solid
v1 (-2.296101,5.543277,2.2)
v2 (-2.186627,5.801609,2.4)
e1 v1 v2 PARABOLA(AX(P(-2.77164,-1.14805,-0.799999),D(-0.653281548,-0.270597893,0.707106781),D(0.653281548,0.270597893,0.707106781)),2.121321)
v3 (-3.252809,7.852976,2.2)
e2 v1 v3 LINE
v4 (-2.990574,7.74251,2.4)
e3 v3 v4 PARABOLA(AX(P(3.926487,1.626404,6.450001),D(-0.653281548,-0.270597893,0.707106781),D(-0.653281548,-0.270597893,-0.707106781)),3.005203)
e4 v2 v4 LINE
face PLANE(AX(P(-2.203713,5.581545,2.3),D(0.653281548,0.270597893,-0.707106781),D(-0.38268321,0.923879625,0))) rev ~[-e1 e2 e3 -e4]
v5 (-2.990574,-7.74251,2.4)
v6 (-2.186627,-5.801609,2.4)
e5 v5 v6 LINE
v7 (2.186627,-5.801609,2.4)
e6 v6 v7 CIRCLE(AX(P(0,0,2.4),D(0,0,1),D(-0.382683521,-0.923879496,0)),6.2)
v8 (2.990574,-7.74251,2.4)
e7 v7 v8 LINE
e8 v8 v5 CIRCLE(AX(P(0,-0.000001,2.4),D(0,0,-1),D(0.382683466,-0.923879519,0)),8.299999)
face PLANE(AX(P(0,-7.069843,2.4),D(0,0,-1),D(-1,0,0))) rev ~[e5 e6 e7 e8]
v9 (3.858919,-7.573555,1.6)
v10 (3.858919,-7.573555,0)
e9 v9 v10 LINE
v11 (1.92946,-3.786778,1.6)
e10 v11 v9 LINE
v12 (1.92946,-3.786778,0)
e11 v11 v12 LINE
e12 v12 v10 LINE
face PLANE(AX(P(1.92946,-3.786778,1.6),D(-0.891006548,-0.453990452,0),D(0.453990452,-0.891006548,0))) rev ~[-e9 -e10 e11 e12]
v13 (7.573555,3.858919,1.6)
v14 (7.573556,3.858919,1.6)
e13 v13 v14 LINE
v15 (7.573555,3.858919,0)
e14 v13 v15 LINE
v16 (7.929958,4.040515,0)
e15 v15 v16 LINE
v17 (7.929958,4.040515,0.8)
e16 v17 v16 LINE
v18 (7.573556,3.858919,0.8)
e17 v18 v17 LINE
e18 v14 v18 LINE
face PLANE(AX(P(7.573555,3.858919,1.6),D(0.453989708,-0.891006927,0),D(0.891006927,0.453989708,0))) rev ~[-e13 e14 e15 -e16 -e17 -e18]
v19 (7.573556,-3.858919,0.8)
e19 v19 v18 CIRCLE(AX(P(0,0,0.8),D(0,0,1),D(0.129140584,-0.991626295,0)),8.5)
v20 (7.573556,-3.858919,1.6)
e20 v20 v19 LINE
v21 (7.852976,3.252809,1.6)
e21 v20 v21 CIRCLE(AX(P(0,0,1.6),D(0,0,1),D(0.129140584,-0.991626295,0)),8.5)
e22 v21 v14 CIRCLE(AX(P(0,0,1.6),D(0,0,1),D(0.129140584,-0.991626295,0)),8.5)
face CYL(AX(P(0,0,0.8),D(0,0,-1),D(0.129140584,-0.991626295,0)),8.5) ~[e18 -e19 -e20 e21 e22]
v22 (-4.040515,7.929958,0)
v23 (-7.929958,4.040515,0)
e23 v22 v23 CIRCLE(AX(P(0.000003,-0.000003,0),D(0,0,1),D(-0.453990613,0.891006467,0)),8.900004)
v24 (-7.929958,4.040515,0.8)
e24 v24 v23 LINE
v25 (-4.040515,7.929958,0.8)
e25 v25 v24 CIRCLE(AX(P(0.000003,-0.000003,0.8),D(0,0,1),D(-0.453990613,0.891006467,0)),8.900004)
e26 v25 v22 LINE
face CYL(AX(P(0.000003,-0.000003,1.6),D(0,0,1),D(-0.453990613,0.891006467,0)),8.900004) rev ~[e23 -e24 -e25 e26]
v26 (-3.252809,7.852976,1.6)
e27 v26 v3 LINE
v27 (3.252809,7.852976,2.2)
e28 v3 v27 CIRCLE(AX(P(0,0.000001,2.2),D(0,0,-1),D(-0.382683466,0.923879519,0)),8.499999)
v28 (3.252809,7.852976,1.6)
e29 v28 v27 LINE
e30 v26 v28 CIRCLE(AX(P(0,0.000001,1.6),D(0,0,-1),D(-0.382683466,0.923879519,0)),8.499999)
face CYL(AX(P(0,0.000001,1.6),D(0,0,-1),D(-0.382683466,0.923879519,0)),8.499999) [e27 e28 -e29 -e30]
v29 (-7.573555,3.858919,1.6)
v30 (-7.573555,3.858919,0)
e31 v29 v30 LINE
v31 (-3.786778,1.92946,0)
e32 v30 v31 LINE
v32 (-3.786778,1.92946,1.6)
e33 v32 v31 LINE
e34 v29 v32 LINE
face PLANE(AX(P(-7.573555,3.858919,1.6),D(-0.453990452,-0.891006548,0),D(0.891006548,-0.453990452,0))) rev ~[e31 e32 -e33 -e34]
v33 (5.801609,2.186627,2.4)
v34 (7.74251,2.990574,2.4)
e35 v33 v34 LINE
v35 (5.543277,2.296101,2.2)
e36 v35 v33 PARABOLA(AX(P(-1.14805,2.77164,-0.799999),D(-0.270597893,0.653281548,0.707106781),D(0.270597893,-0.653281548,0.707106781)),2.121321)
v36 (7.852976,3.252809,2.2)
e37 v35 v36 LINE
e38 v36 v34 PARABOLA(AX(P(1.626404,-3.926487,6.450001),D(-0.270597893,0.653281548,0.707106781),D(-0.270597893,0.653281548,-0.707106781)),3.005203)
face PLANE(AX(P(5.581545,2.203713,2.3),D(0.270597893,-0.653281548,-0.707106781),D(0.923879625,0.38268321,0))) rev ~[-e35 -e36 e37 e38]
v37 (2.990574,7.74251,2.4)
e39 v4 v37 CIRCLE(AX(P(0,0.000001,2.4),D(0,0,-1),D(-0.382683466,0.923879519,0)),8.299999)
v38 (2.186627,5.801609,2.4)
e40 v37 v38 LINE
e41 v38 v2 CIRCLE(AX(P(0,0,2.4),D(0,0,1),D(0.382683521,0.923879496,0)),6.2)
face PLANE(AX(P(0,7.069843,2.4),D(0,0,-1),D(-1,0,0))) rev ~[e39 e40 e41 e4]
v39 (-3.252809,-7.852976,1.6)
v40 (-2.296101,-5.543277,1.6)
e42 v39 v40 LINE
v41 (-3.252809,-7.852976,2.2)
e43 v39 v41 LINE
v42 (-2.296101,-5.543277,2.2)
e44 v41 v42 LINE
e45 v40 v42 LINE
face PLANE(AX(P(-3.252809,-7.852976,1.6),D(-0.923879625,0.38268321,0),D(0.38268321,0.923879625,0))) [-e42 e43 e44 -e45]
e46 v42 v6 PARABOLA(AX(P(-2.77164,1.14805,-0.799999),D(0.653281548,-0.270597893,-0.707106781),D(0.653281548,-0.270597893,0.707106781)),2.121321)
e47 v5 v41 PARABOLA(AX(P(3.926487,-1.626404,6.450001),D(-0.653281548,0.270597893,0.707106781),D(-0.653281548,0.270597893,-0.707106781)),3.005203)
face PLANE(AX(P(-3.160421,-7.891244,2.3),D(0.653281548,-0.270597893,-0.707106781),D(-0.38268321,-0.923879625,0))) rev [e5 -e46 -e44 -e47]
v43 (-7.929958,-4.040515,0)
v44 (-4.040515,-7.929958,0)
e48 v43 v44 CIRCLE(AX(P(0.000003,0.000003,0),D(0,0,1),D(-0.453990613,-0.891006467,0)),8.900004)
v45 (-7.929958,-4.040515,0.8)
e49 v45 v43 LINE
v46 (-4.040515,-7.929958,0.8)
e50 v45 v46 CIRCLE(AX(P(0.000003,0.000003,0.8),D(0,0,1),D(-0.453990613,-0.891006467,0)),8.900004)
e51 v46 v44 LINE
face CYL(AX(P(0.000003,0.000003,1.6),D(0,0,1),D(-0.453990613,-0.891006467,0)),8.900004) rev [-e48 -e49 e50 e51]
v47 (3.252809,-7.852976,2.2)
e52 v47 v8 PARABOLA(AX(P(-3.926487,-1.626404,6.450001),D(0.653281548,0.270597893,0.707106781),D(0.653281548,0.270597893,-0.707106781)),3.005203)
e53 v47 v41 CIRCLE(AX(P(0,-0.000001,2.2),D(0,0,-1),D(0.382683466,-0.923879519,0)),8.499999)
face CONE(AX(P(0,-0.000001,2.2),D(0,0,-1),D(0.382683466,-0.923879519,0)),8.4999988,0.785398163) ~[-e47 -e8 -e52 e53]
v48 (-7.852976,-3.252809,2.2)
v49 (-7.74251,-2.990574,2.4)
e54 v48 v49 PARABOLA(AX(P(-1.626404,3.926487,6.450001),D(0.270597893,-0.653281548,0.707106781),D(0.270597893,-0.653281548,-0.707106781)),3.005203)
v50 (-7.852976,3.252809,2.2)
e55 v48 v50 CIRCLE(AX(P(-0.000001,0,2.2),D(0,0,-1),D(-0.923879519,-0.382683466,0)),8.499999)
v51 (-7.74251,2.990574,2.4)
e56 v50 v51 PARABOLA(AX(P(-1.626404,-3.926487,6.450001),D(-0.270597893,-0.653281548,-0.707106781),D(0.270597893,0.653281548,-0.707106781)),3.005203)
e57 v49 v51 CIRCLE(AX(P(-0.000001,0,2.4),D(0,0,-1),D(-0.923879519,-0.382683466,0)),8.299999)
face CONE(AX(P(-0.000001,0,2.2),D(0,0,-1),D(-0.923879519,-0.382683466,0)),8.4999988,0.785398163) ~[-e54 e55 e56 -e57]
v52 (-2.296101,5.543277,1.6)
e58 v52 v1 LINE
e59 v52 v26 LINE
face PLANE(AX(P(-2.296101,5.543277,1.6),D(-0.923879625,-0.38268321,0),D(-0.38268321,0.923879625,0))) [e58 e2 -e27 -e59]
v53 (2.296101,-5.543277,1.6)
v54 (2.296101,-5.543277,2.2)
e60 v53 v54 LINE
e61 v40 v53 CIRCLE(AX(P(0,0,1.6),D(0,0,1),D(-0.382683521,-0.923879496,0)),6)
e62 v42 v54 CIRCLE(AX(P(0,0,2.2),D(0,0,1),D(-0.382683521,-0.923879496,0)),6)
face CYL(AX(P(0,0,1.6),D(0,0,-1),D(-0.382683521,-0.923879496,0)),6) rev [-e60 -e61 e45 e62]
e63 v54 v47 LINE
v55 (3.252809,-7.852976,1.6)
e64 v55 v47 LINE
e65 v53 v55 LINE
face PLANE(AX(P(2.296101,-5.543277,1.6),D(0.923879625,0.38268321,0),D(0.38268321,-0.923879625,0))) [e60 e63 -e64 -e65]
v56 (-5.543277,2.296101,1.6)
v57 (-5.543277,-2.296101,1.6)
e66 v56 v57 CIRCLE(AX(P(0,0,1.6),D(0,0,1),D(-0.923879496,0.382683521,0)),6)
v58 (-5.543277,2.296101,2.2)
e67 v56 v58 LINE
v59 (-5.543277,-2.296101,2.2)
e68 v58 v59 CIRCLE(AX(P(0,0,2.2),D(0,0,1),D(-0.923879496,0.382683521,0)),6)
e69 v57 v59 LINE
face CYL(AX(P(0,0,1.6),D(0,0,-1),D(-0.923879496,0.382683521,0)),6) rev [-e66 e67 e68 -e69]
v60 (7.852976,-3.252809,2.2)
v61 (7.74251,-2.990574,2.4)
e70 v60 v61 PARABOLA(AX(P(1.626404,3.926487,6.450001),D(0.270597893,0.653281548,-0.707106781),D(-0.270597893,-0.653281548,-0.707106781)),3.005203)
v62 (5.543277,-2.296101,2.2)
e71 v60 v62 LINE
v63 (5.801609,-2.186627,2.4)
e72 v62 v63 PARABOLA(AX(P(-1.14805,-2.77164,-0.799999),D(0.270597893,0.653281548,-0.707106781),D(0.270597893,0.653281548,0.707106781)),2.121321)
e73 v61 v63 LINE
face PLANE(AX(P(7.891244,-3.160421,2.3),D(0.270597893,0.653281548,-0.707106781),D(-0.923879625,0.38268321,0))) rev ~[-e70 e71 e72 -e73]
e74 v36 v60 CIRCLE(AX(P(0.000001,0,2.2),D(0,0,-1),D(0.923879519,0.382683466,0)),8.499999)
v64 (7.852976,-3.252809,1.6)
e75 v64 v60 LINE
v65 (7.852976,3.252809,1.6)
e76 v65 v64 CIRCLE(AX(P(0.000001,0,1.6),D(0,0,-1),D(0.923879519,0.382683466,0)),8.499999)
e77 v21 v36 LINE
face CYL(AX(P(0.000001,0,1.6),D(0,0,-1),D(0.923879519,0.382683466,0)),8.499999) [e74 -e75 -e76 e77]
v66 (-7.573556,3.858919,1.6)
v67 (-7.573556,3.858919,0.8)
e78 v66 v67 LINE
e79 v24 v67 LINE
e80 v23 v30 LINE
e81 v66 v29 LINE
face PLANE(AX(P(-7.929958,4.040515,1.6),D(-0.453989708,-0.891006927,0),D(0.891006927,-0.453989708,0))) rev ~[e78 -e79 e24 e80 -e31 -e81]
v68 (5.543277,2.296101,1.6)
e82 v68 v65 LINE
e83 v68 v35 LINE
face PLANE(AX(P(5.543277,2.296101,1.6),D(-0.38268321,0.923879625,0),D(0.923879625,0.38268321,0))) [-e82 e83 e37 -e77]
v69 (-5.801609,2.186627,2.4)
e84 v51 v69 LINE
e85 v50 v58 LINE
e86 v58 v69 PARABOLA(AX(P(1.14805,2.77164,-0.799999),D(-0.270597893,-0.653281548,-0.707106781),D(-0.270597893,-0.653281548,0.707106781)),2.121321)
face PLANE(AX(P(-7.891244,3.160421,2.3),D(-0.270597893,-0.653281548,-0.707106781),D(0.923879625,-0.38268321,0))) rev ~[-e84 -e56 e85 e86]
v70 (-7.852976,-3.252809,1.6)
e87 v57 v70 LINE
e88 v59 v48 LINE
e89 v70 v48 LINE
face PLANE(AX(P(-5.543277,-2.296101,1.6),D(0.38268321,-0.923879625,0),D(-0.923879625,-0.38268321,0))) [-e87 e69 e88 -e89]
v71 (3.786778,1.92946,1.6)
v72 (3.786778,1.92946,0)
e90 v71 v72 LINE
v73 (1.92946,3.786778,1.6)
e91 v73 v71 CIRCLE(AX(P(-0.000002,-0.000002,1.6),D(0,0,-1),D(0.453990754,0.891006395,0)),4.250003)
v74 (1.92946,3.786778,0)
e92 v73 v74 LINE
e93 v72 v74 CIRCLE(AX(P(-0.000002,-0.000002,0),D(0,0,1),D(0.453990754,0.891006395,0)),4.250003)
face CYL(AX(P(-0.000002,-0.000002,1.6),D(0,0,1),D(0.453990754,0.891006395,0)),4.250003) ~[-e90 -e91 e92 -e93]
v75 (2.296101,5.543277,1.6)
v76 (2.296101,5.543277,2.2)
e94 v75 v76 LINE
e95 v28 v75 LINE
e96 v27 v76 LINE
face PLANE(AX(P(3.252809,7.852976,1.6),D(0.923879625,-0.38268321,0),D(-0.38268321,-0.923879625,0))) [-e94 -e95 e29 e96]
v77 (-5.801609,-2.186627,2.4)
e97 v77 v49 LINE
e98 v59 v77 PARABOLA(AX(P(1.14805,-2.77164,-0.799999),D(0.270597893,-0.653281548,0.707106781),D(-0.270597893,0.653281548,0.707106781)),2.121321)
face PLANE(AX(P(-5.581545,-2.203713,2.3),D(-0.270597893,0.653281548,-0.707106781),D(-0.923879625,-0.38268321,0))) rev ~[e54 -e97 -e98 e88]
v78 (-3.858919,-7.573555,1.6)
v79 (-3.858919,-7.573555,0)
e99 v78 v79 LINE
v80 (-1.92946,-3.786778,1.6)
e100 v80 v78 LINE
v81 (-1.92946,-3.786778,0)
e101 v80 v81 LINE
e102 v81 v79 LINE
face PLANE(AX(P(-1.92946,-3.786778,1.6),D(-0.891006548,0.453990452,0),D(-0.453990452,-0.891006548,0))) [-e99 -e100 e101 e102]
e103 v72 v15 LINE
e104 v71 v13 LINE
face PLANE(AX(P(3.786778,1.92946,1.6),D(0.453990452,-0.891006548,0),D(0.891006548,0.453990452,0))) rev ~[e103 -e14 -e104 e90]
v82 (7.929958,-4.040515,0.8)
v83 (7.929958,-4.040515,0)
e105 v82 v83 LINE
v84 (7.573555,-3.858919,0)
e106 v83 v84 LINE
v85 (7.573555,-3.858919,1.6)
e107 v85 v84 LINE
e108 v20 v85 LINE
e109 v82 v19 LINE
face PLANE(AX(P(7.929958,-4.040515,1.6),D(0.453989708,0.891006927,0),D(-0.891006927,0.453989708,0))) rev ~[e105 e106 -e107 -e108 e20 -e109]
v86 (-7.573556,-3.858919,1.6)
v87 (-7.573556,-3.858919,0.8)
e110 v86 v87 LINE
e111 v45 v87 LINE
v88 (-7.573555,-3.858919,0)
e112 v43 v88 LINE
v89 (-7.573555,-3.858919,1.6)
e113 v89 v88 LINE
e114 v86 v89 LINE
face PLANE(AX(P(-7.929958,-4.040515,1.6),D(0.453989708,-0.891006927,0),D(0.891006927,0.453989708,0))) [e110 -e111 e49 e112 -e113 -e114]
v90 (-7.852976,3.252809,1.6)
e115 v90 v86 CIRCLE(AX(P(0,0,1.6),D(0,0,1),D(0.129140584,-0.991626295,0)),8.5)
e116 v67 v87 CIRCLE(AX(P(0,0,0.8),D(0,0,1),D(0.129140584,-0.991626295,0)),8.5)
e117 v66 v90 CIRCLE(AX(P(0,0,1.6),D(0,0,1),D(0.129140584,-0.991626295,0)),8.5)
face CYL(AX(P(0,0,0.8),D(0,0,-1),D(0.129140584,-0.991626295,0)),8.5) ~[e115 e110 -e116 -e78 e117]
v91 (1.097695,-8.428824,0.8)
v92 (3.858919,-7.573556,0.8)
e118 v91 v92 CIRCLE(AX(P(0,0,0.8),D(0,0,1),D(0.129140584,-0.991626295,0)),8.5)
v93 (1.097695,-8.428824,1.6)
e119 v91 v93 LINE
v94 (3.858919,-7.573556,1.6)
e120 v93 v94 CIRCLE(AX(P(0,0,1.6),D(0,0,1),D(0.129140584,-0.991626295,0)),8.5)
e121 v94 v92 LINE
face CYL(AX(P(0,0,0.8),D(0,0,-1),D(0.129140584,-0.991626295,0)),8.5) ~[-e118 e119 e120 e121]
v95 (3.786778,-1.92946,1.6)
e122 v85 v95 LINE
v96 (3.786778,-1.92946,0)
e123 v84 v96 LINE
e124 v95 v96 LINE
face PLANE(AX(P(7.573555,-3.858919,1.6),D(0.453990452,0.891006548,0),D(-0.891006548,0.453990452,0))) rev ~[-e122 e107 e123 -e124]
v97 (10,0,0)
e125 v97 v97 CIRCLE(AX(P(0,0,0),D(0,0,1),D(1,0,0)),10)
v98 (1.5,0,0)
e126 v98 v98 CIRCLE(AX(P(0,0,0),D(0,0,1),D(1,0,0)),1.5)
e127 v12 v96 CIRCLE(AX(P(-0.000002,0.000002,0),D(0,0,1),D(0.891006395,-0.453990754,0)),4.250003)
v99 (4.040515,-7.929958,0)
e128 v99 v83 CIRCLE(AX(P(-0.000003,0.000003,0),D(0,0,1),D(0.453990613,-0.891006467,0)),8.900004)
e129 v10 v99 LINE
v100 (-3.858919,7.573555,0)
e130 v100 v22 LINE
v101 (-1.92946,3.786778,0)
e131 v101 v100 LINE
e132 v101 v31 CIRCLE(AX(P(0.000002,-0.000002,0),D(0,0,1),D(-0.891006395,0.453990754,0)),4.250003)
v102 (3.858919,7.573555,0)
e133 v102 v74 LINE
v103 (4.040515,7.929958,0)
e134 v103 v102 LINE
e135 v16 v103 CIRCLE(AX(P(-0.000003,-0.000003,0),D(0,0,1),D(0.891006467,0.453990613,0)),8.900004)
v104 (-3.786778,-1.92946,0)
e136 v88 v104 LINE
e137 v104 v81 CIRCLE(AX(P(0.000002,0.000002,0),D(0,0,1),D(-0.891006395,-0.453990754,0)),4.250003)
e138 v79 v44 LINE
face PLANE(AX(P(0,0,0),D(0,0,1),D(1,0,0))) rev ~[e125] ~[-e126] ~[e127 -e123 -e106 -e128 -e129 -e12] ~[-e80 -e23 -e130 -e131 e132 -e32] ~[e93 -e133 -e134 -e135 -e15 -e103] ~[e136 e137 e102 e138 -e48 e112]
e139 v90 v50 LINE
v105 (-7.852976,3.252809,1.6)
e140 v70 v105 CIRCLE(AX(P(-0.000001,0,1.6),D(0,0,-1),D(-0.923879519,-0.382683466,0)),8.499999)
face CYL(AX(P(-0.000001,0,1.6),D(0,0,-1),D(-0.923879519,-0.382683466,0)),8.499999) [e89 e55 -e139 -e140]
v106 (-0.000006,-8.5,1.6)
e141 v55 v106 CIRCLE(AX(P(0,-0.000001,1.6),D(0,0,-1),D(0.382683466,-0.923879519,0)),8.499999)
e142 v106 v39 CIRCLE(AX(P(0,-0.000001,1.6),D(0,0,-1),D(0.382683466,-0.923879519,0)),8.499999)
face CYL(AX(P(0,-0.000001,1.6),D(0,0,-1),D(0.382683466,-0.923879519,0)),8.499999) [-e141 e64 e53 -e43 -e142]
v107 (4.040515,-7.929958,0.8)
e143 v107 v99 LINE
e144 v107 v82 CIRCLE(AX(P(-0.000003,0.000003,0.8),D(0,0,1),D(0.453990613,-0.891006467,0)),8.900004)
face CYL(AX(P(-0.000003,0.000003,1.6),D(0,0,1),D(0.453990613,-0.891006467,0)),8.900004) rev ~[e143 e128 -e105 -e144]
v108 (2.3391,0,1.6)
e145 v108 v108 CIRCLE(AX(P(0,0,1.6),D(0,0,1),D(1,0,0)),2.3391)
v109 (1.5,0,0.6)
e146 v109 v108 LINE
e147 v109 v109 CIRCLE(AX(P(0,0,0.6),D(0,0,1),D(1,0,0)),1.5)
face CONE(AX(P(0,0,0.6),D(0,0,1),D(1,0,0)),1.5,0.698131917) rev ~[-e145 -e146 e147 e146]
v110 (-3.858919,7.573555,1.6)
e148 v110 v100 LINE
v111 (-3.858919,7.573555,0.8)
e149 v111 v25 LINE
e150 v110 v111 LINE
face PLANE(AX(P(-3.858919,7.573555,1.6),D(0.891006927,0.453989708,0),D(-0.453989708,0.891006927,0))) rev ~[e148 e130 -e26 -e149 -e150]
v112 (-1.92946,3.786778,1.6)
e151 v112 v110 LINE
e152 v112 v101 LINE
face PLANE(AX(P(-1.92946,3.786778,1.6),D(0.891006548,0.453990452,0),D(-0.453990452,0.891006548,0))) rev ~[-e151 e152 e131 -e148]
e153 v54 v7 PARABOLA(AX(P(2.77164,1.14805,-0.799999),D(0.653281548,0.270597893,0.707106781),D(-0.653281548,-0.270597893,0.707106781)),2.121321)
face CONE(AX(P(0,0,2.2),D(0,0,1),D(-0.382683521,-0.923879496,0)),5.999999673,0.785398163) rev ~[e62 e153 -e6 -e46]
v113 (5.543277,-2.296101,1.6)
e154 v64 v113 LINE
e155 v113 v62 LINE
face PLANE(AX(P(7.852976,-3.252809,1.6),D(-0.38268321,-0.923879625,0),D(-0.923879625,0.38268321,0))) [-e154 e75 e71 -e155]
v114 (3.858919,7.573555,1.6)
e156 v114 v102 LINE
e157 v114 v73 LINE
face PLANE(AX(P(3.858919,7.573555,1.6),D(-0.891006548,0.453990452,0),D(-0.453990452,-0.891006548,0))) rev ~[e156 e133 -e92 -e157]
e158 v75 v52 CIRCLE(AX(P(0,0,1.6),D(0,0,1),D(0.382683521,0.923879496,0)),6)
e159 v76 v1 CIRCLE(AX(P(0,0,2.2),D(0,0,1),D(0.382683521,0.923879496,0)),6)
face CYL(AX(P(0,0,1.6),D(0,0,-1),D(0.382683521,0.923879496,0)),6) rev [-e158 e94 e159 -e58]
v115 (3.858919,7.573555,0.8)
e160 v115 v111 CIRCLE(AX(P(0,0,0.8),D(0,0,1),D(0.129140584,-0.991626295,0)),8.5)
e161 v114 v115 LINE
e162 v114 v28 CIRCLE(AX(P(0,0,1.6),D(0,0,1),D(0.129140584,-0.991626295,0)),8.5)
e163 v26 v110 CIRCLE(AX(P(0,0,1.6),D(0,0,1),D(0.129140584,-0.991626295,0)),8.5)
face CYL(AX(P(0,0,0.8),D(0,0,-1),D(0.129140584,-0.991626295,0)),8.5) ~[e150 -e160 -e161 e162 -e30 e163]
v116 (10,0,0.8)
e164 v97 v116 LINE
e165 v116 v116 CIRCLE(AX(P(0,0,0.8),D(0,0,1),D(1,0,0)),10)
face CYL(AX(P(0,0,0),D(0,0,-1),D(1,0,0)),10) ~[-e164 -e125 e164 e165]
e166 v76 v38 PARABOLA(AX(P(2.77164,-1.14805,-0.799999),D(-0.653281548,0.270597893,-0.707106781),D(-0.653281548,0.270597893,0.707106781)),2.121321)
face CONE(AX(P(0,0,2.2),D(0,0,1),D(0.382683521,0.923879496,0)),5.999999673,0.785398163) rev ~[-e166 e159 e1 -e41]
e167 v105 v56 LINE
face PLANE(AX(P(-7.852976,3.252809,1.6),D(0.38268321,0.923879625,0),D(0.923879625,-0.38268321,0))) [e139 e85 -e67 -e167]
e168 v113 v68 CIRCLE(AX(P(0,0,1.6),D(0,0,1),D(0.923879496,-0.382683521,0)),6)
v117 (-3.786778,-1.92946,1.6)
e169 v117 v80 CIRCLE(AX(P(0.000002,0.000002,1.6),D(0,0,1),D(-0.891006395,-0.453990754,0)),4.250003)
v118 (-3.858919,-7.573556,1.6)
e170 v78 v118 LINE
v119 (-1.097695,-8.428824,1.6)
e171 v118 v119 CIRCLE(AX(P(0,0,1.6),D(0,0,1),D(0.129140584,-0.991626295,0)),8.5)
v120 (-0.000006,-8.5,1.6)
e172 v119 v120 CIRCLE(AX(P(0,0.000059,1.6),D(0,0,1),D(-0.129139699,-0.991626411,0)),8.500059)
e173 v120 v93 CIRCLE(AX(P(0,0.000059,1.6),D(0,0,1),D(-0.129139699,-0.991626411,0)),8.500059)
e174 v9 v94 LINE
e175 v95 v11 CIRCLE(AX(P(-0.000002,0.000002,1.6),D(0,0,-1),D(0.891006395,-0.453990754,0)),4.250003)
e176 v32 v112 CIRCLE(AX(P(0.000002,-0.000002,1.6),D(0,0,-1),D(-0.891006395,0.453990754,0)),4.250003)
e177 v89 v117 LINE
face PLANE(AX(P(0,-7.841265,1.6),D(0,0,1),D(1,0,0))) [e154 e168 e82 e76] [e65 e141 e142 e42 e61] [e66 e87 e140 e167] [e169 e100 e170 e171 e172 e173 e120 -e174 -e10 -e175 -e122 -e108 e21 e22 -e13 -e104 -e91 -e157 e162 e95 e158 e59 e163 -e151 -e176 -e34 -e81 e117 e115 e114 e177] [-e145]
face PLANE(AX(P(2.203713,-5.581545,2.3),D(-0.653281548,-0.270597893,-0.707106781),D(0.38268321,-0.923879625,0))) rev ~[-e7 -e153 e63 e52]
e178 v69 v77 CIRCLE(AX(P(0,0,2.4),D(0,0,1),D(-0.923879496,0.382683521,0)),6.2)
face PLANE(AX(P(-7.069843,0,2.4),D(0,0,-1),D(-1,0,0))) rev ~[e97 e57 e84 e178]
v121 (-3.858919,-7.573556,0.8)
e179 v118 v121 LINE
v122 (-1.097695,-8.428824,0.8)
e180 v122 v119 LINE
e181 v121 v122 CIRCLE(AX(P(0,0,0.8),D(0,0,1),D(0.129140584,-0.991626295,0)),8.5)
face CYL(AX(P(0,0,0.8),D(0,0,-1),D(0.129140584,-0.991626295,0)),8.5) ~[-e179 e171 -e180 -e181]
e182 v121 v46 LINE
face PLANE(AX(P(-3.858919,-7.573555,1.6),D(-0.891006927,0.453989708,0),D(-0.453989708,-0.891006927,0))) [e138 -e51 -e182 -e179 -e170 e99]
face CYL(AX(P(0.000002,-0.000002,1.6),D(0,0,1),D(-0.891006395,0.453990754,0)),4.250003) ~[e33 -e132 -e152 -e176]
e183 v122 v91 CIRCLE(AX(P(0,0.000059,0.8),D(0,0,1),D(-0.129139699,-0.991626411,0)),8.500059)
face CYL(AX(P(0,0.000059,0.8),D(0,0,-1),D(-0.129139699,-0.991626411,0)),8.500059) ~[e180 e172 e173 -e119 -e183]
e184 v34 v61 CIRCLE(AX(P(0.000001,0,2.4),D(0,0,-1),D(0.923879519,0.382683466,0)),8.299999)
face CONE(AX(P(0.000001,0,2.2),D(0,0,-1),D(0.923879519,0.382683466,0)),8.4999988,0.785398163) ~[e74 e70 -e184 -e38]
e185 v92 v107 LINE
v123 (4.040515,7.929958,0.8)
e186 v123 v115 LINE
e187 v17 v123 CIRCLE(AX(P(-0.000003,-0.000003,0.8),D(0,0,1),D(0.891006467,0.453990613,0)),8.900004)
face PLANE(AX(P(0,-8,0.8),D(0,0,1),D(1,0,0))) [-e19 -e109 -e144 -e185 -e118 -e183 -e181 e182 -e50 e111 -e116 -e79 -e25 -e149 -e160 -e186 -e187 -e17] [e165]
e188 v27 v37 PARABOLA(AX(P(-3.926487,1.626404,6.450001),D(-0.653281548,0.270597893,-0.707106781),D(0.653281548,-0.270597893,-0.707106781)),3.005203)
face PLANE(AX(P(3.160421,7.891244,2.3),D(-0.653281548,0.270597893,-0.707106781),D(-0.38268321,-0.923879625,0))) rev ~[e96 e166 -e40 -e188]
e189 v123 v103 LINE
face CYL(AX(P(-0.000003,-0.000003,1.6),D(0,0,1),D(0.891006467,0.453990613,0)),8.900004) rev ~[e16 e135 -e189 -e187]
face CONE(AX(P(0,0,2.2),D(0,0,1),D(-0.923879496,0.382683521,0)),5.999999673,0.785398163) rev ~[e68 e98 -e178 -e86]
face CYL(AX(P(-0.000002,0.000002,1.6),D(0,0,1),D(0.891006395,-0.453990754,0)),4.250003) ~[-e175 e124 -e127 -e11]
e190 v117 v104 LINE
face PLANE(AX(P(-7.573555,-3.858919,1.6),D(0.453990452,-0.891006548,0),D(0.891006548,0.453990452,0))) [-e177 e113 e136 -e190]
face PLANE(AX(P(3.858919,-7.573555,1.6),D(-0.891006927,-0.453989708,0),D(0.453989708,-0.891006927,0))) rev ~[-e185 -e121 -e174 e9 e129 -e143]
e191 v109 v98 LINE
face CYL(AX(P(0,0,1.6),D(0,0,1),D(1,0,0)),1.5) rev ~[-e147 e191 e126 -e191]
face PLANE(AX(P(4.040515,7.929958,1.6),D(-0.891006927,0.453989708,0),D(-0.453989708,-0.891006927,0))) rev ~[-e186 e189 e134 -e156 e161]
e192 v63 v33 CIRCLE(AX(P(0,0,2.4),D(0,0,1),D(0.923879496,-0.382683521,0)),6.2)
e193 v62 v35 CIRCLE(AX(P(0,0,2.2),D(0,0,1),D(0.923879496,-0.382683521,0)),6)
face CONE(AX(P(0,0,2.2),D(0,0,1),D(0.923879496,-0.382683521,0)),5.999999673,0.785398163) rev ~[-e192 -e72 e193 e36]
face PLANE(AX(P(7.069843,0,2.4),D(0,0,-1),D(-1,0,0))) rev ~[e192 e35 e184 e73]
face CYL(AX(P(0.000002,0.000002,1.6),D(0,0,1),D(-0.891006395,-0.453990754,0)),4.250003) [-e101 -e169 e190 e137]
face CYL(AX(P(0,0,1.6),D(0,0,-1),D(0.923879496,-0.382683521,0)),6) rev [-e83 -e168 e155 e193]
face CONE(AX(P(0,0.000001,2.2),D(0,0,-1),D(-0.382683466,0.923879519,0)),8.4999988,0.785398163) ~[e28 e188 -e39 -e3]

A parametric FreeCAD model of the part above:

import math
import FreeCAD as App
import Part
import Sketcher
Q = App.Units.Quantity


def edges_at(feature, points):
    """Names of the edges that pass closest to the given points."""
    edges = feature.Shape.Edges
    near = lambda p: min(range(len(edges)), key=lambda i: edges[i].distToShape(Part.Vertex(*p))[0])
    return sorted({f"Edge{near(p) + 1}" for p in points})

doc = App.newDocument("Part")
body = doc.addObject("PartDesign::Body", "Body")

sketch1 = body.newObject("Sketcher::SketchObject", "Sketch")
sketch1.AttachmentSupport = (doc.getObject("XY_Plane"), [""])
sketch1.MapMode = "FlatFace"
sketch1.addGeometry(Part.Circle(App.Vector(0, 0, 0), App.Vector(0, 0, 1), 10), False)
sketch1.addConstraint(Sketcher.Constraint("Coincident", 0, 3, -1, 1))
sketch1.addConstraint(Sketcher.Constraint("Diameter", 0, Q("20 mm")))
pad1 = body.newObject("PartDesign::Pad", "Pad")
pad1.Profile = sketch1
pad1.Length = 0.8

sketch2 = body.newObject("Sketcher::SketchObject", "Sketch001")
sketch2.AttachmentSupport = (doc.getObject("XY_Plane"), [""])
sketch2.MapMode = "FlatFace"
sketch2.AttachmentOffset = App.Placement(App.Vector(0, 0, 0.8), App.Rotation())
sketch2.addGeometry(Part.Circle(App.Vector(0, -8, 0), App.Vector(0, 0, 1), 1.1), False)
sketch2.addConstraint(Sketcher.Constraint("PointOnObject", 0, 3, -2))
sketch2.addConstraint(Sketcher.Constraint("Diameter", 0, Q("2.2 mm")))
sketch2.addConstraint(Sketcher.Constraint("DistanceY", 0, 3, -1, 1, Q("8 mm")))
pocket1 = body.newObject("PartDesign::Pocket", "Pocket")
pocket1.Profile = sketch2
pocket1.Length = 10

sketch3 = body.newObject("Sketcher::SketchObject", "Sketch002")
sketch3.AttachmentSupport = (doc.getObject("XY_Plane"), [""])
sketch3.MapMode = "FlatFace"
sketch3.AttachmentOffset = App.Placement(App.Vector(0, 0, 0.8), App.Rotation())
sketch3.addGeometry(Part.ArcOfCircle(Part.Circle(App.Vector(0, 0, 0), App.Vector(0, 0, 1), 8.5), math.radians(-83), math.radians(263)), False)
sketch3.addGeometry(Part.ArcOfCircle(Part.Circle(App.Vector(0, -8, 0), App.Vector(0, 0, 1), 1.2), math.radians(-21), math.radians(201)), False)
sketch3.addConstraint(Sketcher.Constraint("Coincident", 0, 1, 1, 1))
sketch3.addConstraint(Sketcher.Constraint("Coincident", 1, 2, 0, 2))
sketch3.addConstraint(Sketcher.Constraint("Coincident", 0, 3, -1, 1))
sketch3.addConstraint(Sketcher.Constraint("PointOnObject", 1, 3, -2))
sketch3.addConstraint(Sketcher.Constraint("Radius", 0, Q("8.5 mm")))
sketch3.addConstraint(Sketcher.Constraint("DistanceY", 1, 3, -1, 1, Q("8 mm")))
sketch3.addConstraint(Sketcher.Constraint("Radius", 1, Q("1.178484 mm")))
pad2 = body.newObject("PartDesign::Pad", "Pad001")
pad2.Profile = sketch3
pad2.Length = 0.8

sketch4 = body.newObject("Sketcher::SketchObject", "Sketch003")
sketch4.AttachmentSupport = (doc.getObject("XY_Plane"), [""])
sketch4.MapMode = "FlatFace"
sketch4.AttachmentOffset = App.Placement(App.Vector(0, 0, 1.6), App.Rotation())
sketch4.addGeometry(Part.Circle(App.Vector(0, 0, 0), App.Vector(0, 0, 1), 1.5), False)
sketch4.addConstraint(Sketcher.Constraint("Coincident", 0, 3, -1, 1))
sketch4.addConstraint(Sketcher.Constraint("Diameter", 0, Q("3 mm")))
pocket2 = body.newObject("PartDesign::Pocket", "Pocket001")
pocket2.Profile = sketch4
pocket2.Length = 10
doc.recompute()

chamfer = body.newObject("PartDesign::Chamfer", "Chamfer")
chamfer.Base = (pocket2, edges_at(pocket2, [(-1.5, 0, 1.6)]))
chamfer.ChamferType = "Two distances"
chamfer.Size = 1
chamfer.Size2 = 0.8391

sketch5 = body.newObject("Sketcher::SketchObject", "Sketch004")
sketch5.AttachmentSupport = (doc.getObject("XY_Plane"), [""])
sketch5.MapMode = "FlatFace"
sketch5.AttachmentOffset = App.Placement(App.Vector(0, 0, 0.8), App.Rotation())
sketch5.addGeometry(Part.Circle(App.Vector(0, -8, 0), App.Vector(0, 0, 1), 1.1), False)
sketch5.addConstraint(Sketcher.Constraint("PointOnObject", 0, 3, -2))
sketch5.addConstraint(Sketcher.Constraint("Diameter", 0, Q("2.2 mm")))
sketch5.addConstraint(Sketcher.Constraint("DistanceY", 0, 3, -1, 1, Q("8 mm")))
pad3 = body.newObject("PartDesign::Pad", "Pad002")
pad3.Profile = sketch5
pad3.Length = 0.8
pad3.Reversed = True

sketch6 = body.newObject("Sketcher::SketchObject", "Sketch005")
sketch6.AttachmentSupport = (doc.getObject("XY_Plane"), [""])
sketch6.MapMode = "FlatFace"
sketch6.AttachmentOffset = App.Placement(App.Vector(0, 0, 0.8), App.Rotation())
sketch6.addGeometry(Part.ArcOfCircle(Part.Circle(App.Vector(0, -8, 0), App.Vector(0, 0, 1), 1.2), math.radians(-21), math.radians(201)), False)
sketch6.addGeometry(Part.ArcOfCircle(Part.Circle(App.Vector(0, 0, 0), App.Vector(0, 0, 1), 8.5), math.radians(-97.42), math.radians(-82.58)), False)
sketch6.addConstraint(Sketcher.Constraint("Coincident", 0, 1, 1, 2))
sketch6.addConstraint(Sketcher.Constraint("Coincident", 1, 1, 0, 2))
sketch6.addConstraint(Sketcher.Constraint("Symmetric", 0, 1, 1, 1, -2))
sketch6.addConstraint(Sketcher.Constraint("DistanceY", 0, 3, -1, 1, Q("8 mm")))
sketch6.addConstraint(Sketcher.Constraint("Radius", 1, Q("8.500059 mm")))
sketch6.addConstraint(Sketcher.Constraint("Radius", 0, Q("1.178484 mm")))
sketch6.addConstraint(Sketcher.Constraint("DistanceY", 0, 3, 1, 3, Q("8.000058 mm")))
pad4 = body.newObject("PartDesign::Pad", "Pad003")
pad4.Profile = sketch6
pad4.Length = 0.8

sketch7 = body.newObject("Sketcher::SketchObject", "Sketch006")
sketch7.AttachmentSupport = (doc.getObject("XY_Plane"), [""])
sketch7.MapMode = "FlatFace"
sketch7.AttachmentOffset = App.Placement(App.Vector(0, 0, 1.6), App.Rotation())
sketch7.addGeometry(Part.Circle(App.Vector(-4.6, -4.6, 0), App.Vector(0, 0, 1), 0.8), False)
sketch7.addGeometry(Part.Circle(App.Vector(4.6, 4.6, 0), App.Vector(0, 0, 1), 0.8), False)
sketch7.addConstraint(Sketcher.Constraint("Equal", 0, 1))
sketch7.addConstraint(Sketcher.Constraint("Symmetric", 0, 3, 1, 3, -1, 1))
sketch7.addConstraint(Sketcher.Constraint("Diameter", 0, Q("1.51 mm")))
sketch7.addConstraint(Sketcher.Constraint("DistanceX", 0, 3, -1, 1, Q("4.610336 mm")))
sketch7.addConstraint(Sketcher.Constraint("DistanceY", 0, 3, -1, 1, Q("4.610336 mm")))
pocket3 = body.newObject("PartDesign::Pocket", "Pocket002")
pocket3.Profile = sketch7
pocket3.Type = "ThroughAll"
pocket3.Midplane = True

sketch8 = body.newObject("Sketcher::SketchObject", "Sketch007")
sketch8.AttachmentSupport = (doc.getObject("XY_Plane"), [""])
sketch8.MapMode = "FlatFace"
sketch8.AttachmentOffset = App.Placement(App.Vector(0, 0, 1.6), App.Rotation())
sketch8.addGeometry(Part.Circle(App.Vector(4.6, 4.6, 0), App.Vector(0, 0, 1), 1.5), False)
sketch8.addConstraint(Sketcher.Constraint("Diameter", 0, Q("3 mm")))
sketch8.addConstraint(Sketcher.Constraint("DistanceX", -1, 1, 0, 3, Q("4.610336 mm")))
sketch8.addConstraint(Sketcher.Constraint("DistanceY", -1, 1, 0, 3, Q("4.610336 mm")))
pocket4 = body.newObject("PartDesign::Pocket", "Pocket003")
pocket4.Profile = sketch8
pocket4.Type = "ThroughAll"
pocket4.Midplane = True

sketch9 = body.newObject("Sketcher::SketchObject", "Sketch008")
sketch9.AttachmentSupport = (doc.getObject("XY_Plane"), [""])
sketch9.MapMode = "FlatFace"
sketch9.AttachmentOffset = App.Placement(App.Vector(0, 0, 1.6), App.Rotation())
sketch9.addGeometry(Part.LineSegment(App.Vector(4.8, 4.4, 0), App.Vector(6.7, 6.2, 0)), False)
sketch9.addGeometry(Part.LineSegment(App.Vector(6.7, 6.2, 0), App.Vector(6.2, 6.7, 0)), False)
sketch9.addGeometry(Part.LineSegment(App.Vector(6.2, 6.7, 0), App.Vector(4.4, 4.8, 0)), False)
sketch9.addGeometry(Part.LineSegment(App.Vector(4.4, 4.8, 0), App.Vector(4.8, 4.4, 0)), False)
sketch9.addConstraint(Sketcher.Constraint("Coincident", 0, 2, 1, 1))
sketch9.addConstraint(Sketcher.Constraint("Coincident", 1, 2, 2, 1))
sketch9.addConstraint(Sketcher.Constraint("Coincident", 2, 2, 3, 1))
sketch9.addConstraint(Sketcher.Constraint("Coincident", 3, 2, 0, 1))
sketch9.addConstraint(Sketcher.Constraint("Perpendicular", 0, 1))
sketch9.addConstraint(Sketcher.Constraint("Perpendicular", 1, 2))
sketch9.addConstraint(Sketcher.Constraint("Perpendicular", 2, 3))
sketch9.addConstraint(Sketcher.Constraint("Angle", 0, Q("45 deg")))
sketch9.addConstraint(Sketcher.Constraint("Distance", 1, Q("0.6 mm")))
sketch9.addConstraint(Sketcher.Constraint("DistanceX", -1, 1, 0, 2, Q("6.66735 mm")))
sketch9.addConstraint(Sketcher.Constraint("DistanceY", -1, 1, 1, 2, Q("6.66735 mm")))
sketch9.addConstraint(Sketcher.Constraint("DistanceY", 2, 2, 0, 2, Q("1.420618 mm")))
pocket5 = body.newObject("PartDesign::Pocket", "Pocket004")
pocket5.Profile = sketch9
pocket5.Type = "TwoLengths"
pocket5.Length = 15.232357
pocket5.Length2 = 0.8
pocket5.Reversed = True

sketch10 = body.newObject("Sketcher::SketchObject", "Sketch009")
sketch10.AttachmentSupport = (doc.getObject("XY_Plane"), [""])
sketch10.MapMode = "FlatFace"
sketch10.AttachmentOffset = App.Placement(App.Vector(0, 0, 1.6), App.Rotation())
sketch10.addGeometry(Part.LineSegment(App.Vector(7.9, 3.3, 0), App.Vector(5.5, 2.3, 0)), False)
sketch10.addGeometry(Part.ArcOfCircle(Part.Circle(App.Vector(0, 0, 0), App.Vector(0, 0, 1), 6), math.radians(-23), math.radians(23)), False)
sketch10.addGeometry(Part.LineSegment(App.Vector(5.5, -2.3, 0), App.Vector(7.9, -3.3, 0)), False)
sketch10.addGeometry(Part.ArcOfCircle(Part.Circle(App.Vector(0, 0, 0), App.Vector(0, 0, 1), 8.5), math.radians(-23), math.radians(23)), False)
sketch10.addGeometry(Part.LineSegment(App.Vector(3.3, -7.9, 0), App.Vector(2.3, -5.5, 0)), False)
sketch10.addGeometry(Part.ArcOfCircle(Part.Circle(App.Vector(0, 0, 0), App.Vector(0, 0, 1), 6), math.radians(-113), math.radians(-67)), False)
sketch10.addGeometry(Part.LineSegment(App.Vector(-2.3, -5.5, 0), App.Vector(-3.3, -7.9, 0)), False)
sketch10.addGeometry(Part.ArcOfCircle(Part.Circle(App.Vector(0, 0, 0), App.Vector(0, 0, 1), 8.5), math.radians(-113), math.radians(-67)), False)
sketch10.addGeometry(Part.LineSegment(App.Vector(-7.9, -3.3, 0), App.Vector(-5.5, -2.3, 0)), False)
sketch10.addGeometry(Part.ArcOfCircle(Part.Circle(App.Vector(0, 0, 0), App.Vector(0, 0, 1), 6), math.radians(157), math.radians(203)), False)
sketch10.addGeometry(Part.LineSegment(App.Vector(-5.5, 2.3, 0), App.Vector(-7.9, 3.3, 0)), False)
sketch10.addGeometry(Part.ArcOfCircle(Part.Circle(App.Vector(0, 0, 0), App.Vector(0, 0, 1), 8.5), math.radians(157), math.radians(203)), False)
sketch10.addGeometry(Part.LineSegment(App.Vector(-3.3, 7.9, 0), App.Vector(-2.3, 5.5, 0)), False)
sketch10.addGeometry(Part.ArcOfCircle(Part.Circle(App.Vector(0, 0, 0), App.Vector(0, 0, 1), 6), math.radians(67), math.radians(113)), False)
sketch10.addGeometry(Part.LineSegment(App.Vector(2.3, 5.5, 0), App.Vector(3.3, 7.9, 0)), False)
sketch10.addGeometry(Part.ArcOfCircle(Part.Circle(App.Vector(0, 0, 0), App.Vector(0, 0, 1), 8.5), math.radians(67), math.radians(113)), False)
sketch10.addConstraint(Sketcher.Constraint("Coincident", 0, 2, 1, 2))
sketch10.addConstraint(Sketcher.Constraint("Coincident", 1, 1, 2, 1))
sketch10.addConstraint(Sketcher.Constraint("Coincident", 2, 2, 3, 1))
sketch10.addConstraint(Sketcher.Constraint("Coincident", 3, 2, 0, 1))
sketch10.addConstraint(Sketcher.Constraint("Coincident", 4, 2, 5, 2))
sketch10.addConstraint(Sketcher.Constraint("Coincident", 5, 1, 6, 1))
sketch10.addConstraint(Sketcher.Constraint("Coincident", 6, 2, 7, 1))
sketch10.addConstraint(Sketcher.Constraint("Coincident", 7, 2, 4, 1))
sketch10.addConstraint(Sketcher.Constraint("Coincident", 8, 2, 9, 2))
sketch10.addConstraint(Sketcher.Constraint("Coincident", 9, 1, 10, 1))
sketch10.addConstraint(Sketcher.Constraint("Coincident", 10, 2, 11, 1))
sketch10.addConstraint(Sketcher.Constraint("Coincident", 11, 2, 8, 1))
sketch10.addConstraint(Sketcher.Constraint("Coincident", 12, 2, 13, 2))
sketch10.addConstraint(Sketcher.Constraint("Coincident", 13, 1, 14, 1))
sketch10.addConstraint(Sketcher.Constraint("Coincident", 14, 2, 15, 1))
sketch10.addConstraint(Sketcher.Constraint("Coincident", 15, 2, 12, 1))
sketch10.addConstraint(Sketcher.Constraint("Coincident", 1, 3, -1, 1))
sketch10.addConstraint(Sketcher.Constraint("Coincident", 3, 3, -1, 1))
sketch10.addConstraint(Sketcher.Constraint("Coincident", 5, 3, -1, 1))
sketch10.addConstraint(Sketcher.Constraint("Coincident", 7, 3, -1, 1))
sketch10.addConstraint(Sketcher.Constraint("Coincident", 9, 3, -1, 1))
sketch10.addConstraint(Sketcher.Constraint("Coincident", 11, 3, -1, 1))
sketch10.addConstraint(Sketcher.Constraint("Coincident", 13, 3, -1, 1))
sketch10.addConstraint(Sketcher.Constraint("Coincident", 15, 3, -1, 1))
sketch10.addConstraint(Sketcher.Constraint("Equal", 1, 5))
sketch10.addConstraint(Sketcher.Constraint("Equal", 3, 7))
sketch10.addConstraint(Sketcher.Constraint("Equal", 5, 9))
sketch10.addConstraint(Sketcher.Constraint("Equal", 7, 11))
sketch10.addConstraint(Sketcher.Constraint("Equal", 9, 13))
sketch10.addConstraint(Sketcher.Constraint("Equal", 11, 15))
sketch10.addConstraint(Sketcher.Constraint("Perpendicular", 0, 4))
sketch10.addConstraint(Sketcher.Constraint("Perpendicular", 2, 6))
sketch10.addConstraint(Sketcher.Constraint("Perpendicular", 4, 8))
sketch10.addConstraint(Sketcher.Constraint("Perpendicular", 6, 10))
sketch10.addConstraint(Sketcher.Constraint("Perpendicular", 8, 12))
sketch10.addConstraint(Sketcher.Constraint("Perpendicular", 10, 14))
sketch10.addConstraint(Sketcher.Constraint("Horizontal", 4, 2, 5, 1))
sketch10.addConstraint(Sketcher.Constraint("Horizontal", 6, 2, 7, 2))
sketch10.addConstraint(Sketcher.Constraint("Horizontal", 1, 1, 8, 2))
sketch10.addConstraint(Sketcher.Constraint("Horizontal", 0, 2, 9, 1))
sketch10.addConstraint(Sketcher.Constraint("Horizontal", 12, 2, 13, 1))
sketch10.addConstraint(Sketcher.Constraint("Vertical", 0, 2, 1, 1))
sketch10.addConstraint(Sketcher.Constraint("Vertical", 5, 1, 12, 2))
sketch10.addConstraint(Sketcher.Constraint("Radius", 1, Q("6 mm")))
sketch10.addConstraint(Sketcher.Constraint("Radius", 3, Q("8.499999 mm")))
sketch10.addConstraint(Sketcher.Constraint("Angle", 0, Q("-157.500014 deg")))
sketch10.addConstraint(Sketcher.Constraint("DistanceY", -1, 1, 0, 2, Q("2.296101 mm")))
sketch10.addConstraint(Sketcher.Constraint("DistanceX", -1, 1, 4, 2, Q("2.296101 mm")))
pad5 = body.newObject("PartDesign::Pad", "Pad004")
pad5.Profile = sketch10
pad5.Length = 0.8

sketch11 = body.newObject("Sketcher::SketchObject", "Sketch010")
sketch11.AttachmentSupport = (doc.getObject("XY_Plane"), [""])
sketch11.MapMode = "FlatFace"
sketch11.AttachmentOffset = App.Placement(App.Vector(0, 0, 1.6), App.Rotation())
sketch11.addGeometry(Part.Circle(App.Vector(4.6, -4.6, 0), App.Vector(0, 0, 1), 0.8), False)
sketch11.addGeometry(Part.Circle(App.Vector(-4.6, 4.6, 0), App.Vector(0, 0, 1), 0.8), False)
sketch11.addConstraint(Sketcher.Constraint("Equal", 0, 1))
sketch11.addConstraint(Sketcher.Constraint("Symmetric", 0, 3, 1, 3, -1, 1))
sketch11.addConstraint(Sketcher.Constraint("Diameter", 0, Q("1.51 mm")))
sketch11.addConstraint(Sketcher.Constraint("DistanceX", -1, 1, 0, 3, Q("4.610336 mm")))
sketch11.addConstraint(Sketcher.Constraint("DistanceY", 0, 3, -1, 1, Q("4.610336 mm")))
pocket6 = body.newObject("PartDesign::Pocket", "Pocket005")
pocket6.Profile = sketch11
pocket6.Length = 10
doc.recompute()

chamfer2 = body.newObject("PartDesign::Chamfer", "Chamfer001")
chamfer2.Base = (pocket6, edges_at(pocket6, [
    (8.5, 0, 2.4),
    (6.698, 2.774, 2.4),
    (6, 0, 2.4),
    (6.698, -2.774, 2.4),
    (0, 8.5, 2.4),
    (-2.774, 6.698, 2.4),
    (0, 6, 2.4),
    (2.774, 6.698, 2.4),
    (-6, 0, 2.4),
    (-6.698, 2.774, 2.4),
    (-8.5, 0, 2.4),
    (-6.698, -2.774, 2.4),
    (0, -6, 2.4),
    (-2.774, -6.698, 2.4),
    (0, -8.5, 2.4),
    (2.774, -6.698, 2.4),
]))
chamfer2.Size = 0.2

sketch12 = body.newObject("Sketcher::SketchObject", "Sketch011")
sketch12.AttachmentSupport = (doc.getObject("XY_Plane"), [""])
sketch12.MapMode = "FlatFace"
sketch12.AttachmentOffset = App.Placement(App.Vector(0, 0, 1.6), App.Rotation())
sketch12.addGeometry(Part.LineSegment(App.Vector(-3.79, -1.93, 0), App.Vector(-7.57, -3.86, 0)), False)
sketch12.addGeometry(Part.LineSegment(App.Vector(-7.57, -3.86, 0), App.Vector(-7.93, -4.04, 0)), False)
sketch12.addGeometry(Part.ArcOfCircle(Part.Circle(App.Vector(0, 0, 0), App.Vector(0, 0, 1), 8.9), math.radians(-153), math.radians(-117)), False)
sketch12.addGeometry(Part.LineSegment(App.Vector(-4.04, -7.93, 0), App.Vector(-3.86, -7.57, 0)), False)
sketch12.addGeometry(Part.LineSegment(App.Vector(-3.86, -7.57, 0), App.Vector(-1.93, -3.79, 0)), False)
sketch12.addGeometry(Part.ArcOfCircle(Part.Circle(App.Vector(0, 0, 0), App.Vector(0, 0, 1), 4.25), math.radians(-153), math.radians(-117)), False)
sketch12.addGeometry(Part.LineSegment(App.Vector(-7.57, 3.86, 0), App.Vector(-3.79, 1.93, 0)), False)
sketch12.addGeometry(Part.ArcOfCircle(Part.Circle(App.Vector(0, 0, 0), App.Vector(0, 0, 1), 4.25), math.radians(117), math.radians(153)), False)
sketch12.addGeometry(Part.LineSegment(App.Vector(-1.93, 3.79, 0), App.Vector(-3.86, 7.57, 0)), False)
sketch12.addGeometry(Part.LineSegment(App.Vector(-3.86, 7.57, 0), App.Vector(-4.04, 7.93, 0)), False)
sketch12.addGeometry(Part.ArcOfCircle(Part.Circle(App.Vector(0, 0, 0), App.Vector(0, 0, 1), 8.9), math.radians(117), math.radians(153)), False)
sketch12.addGeometry(Part.LineSegment(App.Vector(-7.93, 4.04, 0), App.Vector(-7.57, 3.86, 0)), False)
sketch12.addGeometry(Part.LineSegment(App.Vector(3.86, 7.57, 0), App.Vector(1.93, 3.79, 0)), False)
sketch12.addGeometry(Part.ArcOfCircle(Part.Circle(App.Vector(0, 0, 0), App.Vector(0, 0, 1), 4.25), math.radians(27), math.radians(63)), False)
sketch12.addGeometry(Part.LineSegment(App.Vector(3.79, 1.93, 0), App.Vector(7.57, 3.86, 0)), False)
sketch12.addGeometry(Part.LineSegment(App.Vector(7.57, 3.86, 0), App.Vector(7.93, 4.04, 0)), False)
sketch12.addGeometry(Part.ArcOfCircle(Part.Circle(App.Vector(0, 0, 0), App.Vector(0, 0, 1), 8.9), math.radians(27), math.radians(63)), False)
sketch12.addGeometry(Part.LineSegment(App.Vector(4.04, 7.93, 0), App.Vector(3.86, 7.57, 0)), False)
sketch12.addGeometry(Part.LineSegment(App.Vector(7.57, -3.86, 0), App.Vector(3.79, -1.93, 0)), False)
sketch12.addGeometry(Part.ArcOfCircle(Part.Circle(App.Vector(0, 0, 0), App.Vector(0, 0, 1), 4.25), math.radians(-63), math.radians(-27)), False)
sketch12.addGeometry(Part.LineSegment(App.Vector(1.93, -3.79, 0), App.Vector(3.86, -7.57, 0)), False)
sketch12.addGeometry(Part.LineSegment(App.Vector(3.86, -7.57, 0), App.Vector(4.04, -7.93, 0)), False)
sketch12.addGeometry(Part.ArcOfCircle(Part.Circle(App.Vector(0, 0, 0), App.Vector(0, 0, 1), 8.9), math.radians(-63), math.radians(-27)), False)
sketch12.addGeometry(Part.LineSegment(App.Vector(7.93, -4.04, 0), App.Vector(7.57, -3.86, 0)), False)
sketch12.addConstraint(Sketcher.Constraint("Coincident", 0, 2, 1, 1))
sketch12.addConstraint(Sketcher.Constraint("Coincident", 1, 2, 2, 1))
sketch12.addConstraint(Sketcher.Constraint("Coincident", 2, 2, 3, 1))
sketch12.addConstraint(Sketcher.Constraint("Coincident", 3, 2, 4, 1))
sketch12.addConstraint(Sketcher.Constraint("Coincident", 4, 2, 5, 2))
sketch12.addConstraint(Sketcher.Constraint("Coincident", 5, 1, 0, 1))
sketch12.addConstraint(Sketcher.Constraint("Coincident", 6, 2, 7, 2))
sketch12.addConstraint(Sketcher.Constraint("Coincident", 7, 1, 8, 1))
sketch12.addConstraint(Sketcher.Constraint("Coincident", 8, 2, 9, 1))
sketch12.addConstraint(Sketcher.Constraint("Coincident", 9, 2, 10, 1))
sketch12.addConstraint(Sketcher.Constraint("Coincident", 10, 2, 11, 1))
sketch12.addConstraint(Sketcher.Constraint("Coincident", 11, 2, 6, 1))
sketch12.addConstraint(Sketcher.Constraint("Coincident", 12, 2, 13, 2))
sketch12.addConstraint(Sketcher.Constraint("Coincident", 13, 1, 14, 1))
sketch12.addConstraint(Sketcher.Constraint("Coincident", 14, 2, 15, 1))
sketch12.addConstraint(Sketcher.Constraint("Coincident", 15, 2, 16, 1))
sketch12.addConstraint(Sketcher.Constraint("Coincident", 16, 2, 17, 1))
sketch12.addConstraint(Sketcher.Constraint("Coincident", 17, 2, 12, 1))
sketch12.addConstraint(Sketcher.Constraint("Coincident", 18, 2, 19, 2))
sketch12.addConstraint(Sketcher.Constraint("Coincident", 19, 1, 20, 1))
sketch12.addConstraint(Sketcher.Constraint("Coincident", 20, 2, 21, 1))
sketch12.addConstraint(Sketcher.Constraint("Coincident", 21, 2, 22, 1))
sketch12.addConstraint(Sketcher.Constraint("Coincident", 22, 2, 23, 1))
sketch12.addConstraint(Sketcher.Constraint("Coincident", 23, 2, 18, 1))
sketch12.addConstraint(Sketcher.Constraint("Coincident", 2, 3, -1, 1))
sketch12.addConstraint(Sketcher.Constraint("Coincident", 5, 3, -1, 1))
sketch12.addConstraint(Sketcher.Constraint("Coincident", 7, 3, -1, 1))
sketch12.addConstraint(Sketcher.Constraint("Coincident", 10, 3, -1, 1))
sketch12.addConstraint(Sketcher.Constraint("Coincident", 13, 3, -1, 1))
sketch12.addConstraint(Sketcher.Constraint("Coincident", 16, 3, -1, 1))
sketch12.addConstraint(Sketcher.Constraint("Coincident", 19, 3, -1, 1))
sketch12.addConstraint(Sketcher.Constraint("Coincident", 22, 3, -1, 1))
sketch12.addConstraint(Sketcher.Constraint("Equal", 5, 7))
sketch12.addConstraint(Sketcher.Constraint("Equal", 2, 10))
sketch12.addConstraint(Sketcher.Constraint("Equal", 7, 13))
sketch12.addConstraint(Sketcher.Constraint("Equal", 10, 16))
sketch12.addConstraint(Sketcher.Constraint("Equal", 13, 19))
sketch12.addConstraint(Sketcher.Constraint("Equal", 16, 22))
sketch12.addConstraint(Sketcher.Constraint("Symmetric", 0, 2, 14, 2, -1, 1))
sketch12.addConstraint(Sketcher.Constraint("Symmetric", 3, 2, 17, 2, -1, 1))
sketch12.addConstraint(Sketcher.Constraint("Symmetric", 8, 2, 20, 2, -1, 1))
sketch12.addConstraint(Sketcher.Constraint("Symmetric", 11, 2, 23, 2, -1, 1))
sketch12.addConstraint(Sketcher.Constraint("Symmetric", 11, 2, 14, 2, -2))
sketch12.addConstraint(Sketcher.Constraint("Symmetric", 8, 2, 17, 2, -2))
sketch12.addConstraint(Sketcher.Constraint("Parallel", 0, 1))
sketch12.addConstraint(Sketcher.Constraint("Parallel", 3, 4))
sketch12.addConstraint(Sketcher.Constraint("Perpendicular", 4, 6))
sketch12.addConstraint(Sketcher.Constraint("Perpendicular", 1, 8))
sketch12.addConstraint(Sketcher.Constraint("Parallel", 8, 9))
sketch12.addConstraint(Sketcher.Constraint("Parallel", 6, 11))
sketch12.addConstraint(Sketcher.Constraint("Perpendicular", 11, 12))
sketch12.addConstraint(Sketcher.Constraint("Perpendicular", 9, 14))
sketch12.addConstraint(Sketcher.Constraint("Parallel", 14, 15))
sketch12.addConstraint(Sketcher.Constraint("Parallel", 12, 17))
sketch12.addConstraint(Sketcher.Constraint("Perpendicular", 17, 18))
sketch12.addConstraint(Sketcher.Constraint("Perpendicular", 15, 20))
sketch12.addConstraint(Sketcher.Constraint("Parallel", 20, 21))
sketch12.addConstraint(Sketcher.Constraint("Parallel", 18, 23))
sketch12.addConstraint(Sketcher.Constraint("Horizontal", 7, 1, 12, 2))
sketch12.addConstraint(Sketcher.Constraint("Equal", 1, 3))
sketch12.addConstraint(Sketcher.Constraint("Angle", 0, Q("-153.000003 deg")))
sketch12.addConstraint(Sketcher.Constraint("Distance", 1, Q("0.4 mm")))
sketch12.addConstraint(Sketcher.Constraint("Distance", 0, Q("4.249999 mm")))
sketch12.addConstraint(Sketcher.Constraint("Radius", 2, Q("8.900004 mm")))
sketch12.addConstraint(Sketcher.Constraint("DistanceY", 6, 2, 9, 2, Q("6.000498 mm")))
sketch12.addConstraint(Sketcher.Constraint("DistanceX", 12, 2, 15, 2, Q("6.000498 mm")))
pocket7 = body.newObject("PartDesign::Pocket", "Pocket006")
pocket7.Profile = sketch12
pocket7.Length = 10

doc.recompute()
